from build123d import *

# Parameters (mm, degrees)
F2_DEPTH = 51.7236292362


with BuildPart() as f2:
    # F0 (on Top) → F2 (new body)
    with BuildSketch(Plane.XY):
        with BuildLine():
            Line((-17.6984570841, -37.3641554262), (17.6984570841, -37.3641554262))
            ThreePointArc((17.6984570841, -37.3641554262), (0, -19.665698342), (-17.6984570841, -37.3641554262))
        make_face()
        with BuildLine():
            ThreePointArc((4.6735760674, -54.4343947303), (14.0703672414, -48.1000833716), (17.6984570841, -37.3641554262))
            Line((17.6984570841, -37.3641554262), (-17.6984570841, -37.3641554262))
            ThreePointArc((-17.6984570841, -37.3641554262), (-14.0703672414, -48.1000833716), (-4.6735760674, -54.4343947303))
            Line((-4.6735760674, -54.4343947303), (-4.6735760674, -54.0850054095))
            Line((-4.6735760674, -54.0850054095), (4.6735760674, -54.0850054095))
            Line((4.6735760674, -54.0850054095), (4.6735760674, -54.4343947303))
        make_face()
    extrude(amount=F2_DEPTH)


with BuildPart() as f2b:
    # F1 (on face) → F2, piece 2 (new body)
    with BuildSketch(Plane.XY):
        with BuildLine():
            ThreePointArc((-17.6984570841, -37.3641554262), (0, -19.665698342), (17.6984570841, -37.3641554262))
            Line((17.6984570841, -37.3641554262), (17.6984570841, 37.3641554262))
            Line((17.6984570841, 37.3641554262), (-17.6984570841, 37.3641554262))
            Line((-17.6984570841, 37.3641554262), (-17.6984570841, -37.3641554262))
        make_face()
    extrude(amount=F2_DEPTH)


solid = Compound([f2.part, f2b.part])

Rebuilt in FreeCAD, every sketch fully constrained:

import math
import FreeCAD as App
import Part
import Sketcher
from FreeCAD import Vector
Q = App.Units.Quantity

doc = App.newDocument("Part")
body = doc.addObject("PartDesign::Body", "Body")

sketch1 = body.newObject("Sketcher::SketchObject", "Sketch")
sketch1.AttachmentSupport = (doc.getObject("XY_Plane"), [""])
sketch1.MapMode = "FlatFace"
sketch1.addGeometry([
    Part.ArcOfCircle(Part.Circle(Vector(0, -37.364155, 0), Vector(0, 0, 1), 17.698457), math.radians(0), math.radians(180)),
    Part.ArcOfCircle(Part.Circle(Vector(0, -37.364155, 0), Vector(0, 0, 1), 17.698457), math.radians(180), math.radians(254.688487)),
    Part.LineSegment(Vector(-4.673576, -54.434395, 0), Vector(-4.673576, -54.085005, 0)),
    Part.LineSegment(Vector(-4.673576, -54.085005, 0), Vector(4.673576, -54.085005, 0)),
    Part.LineSegment(Vector(4.673576, -54.085005, 0), Vector(4.673576, -54.434395, 0)),
    Part.ArcOfCircle(Part.Circle(Vector(0, -37.364155, 0), Vector(0, 0, 1), 17.698457), math.radians(-74.688487), math.radians(0)),
], False)
sketch1.addConstraint([
    Sketcher.Constraint("Tangent", 0, 2, 1, 1),
    Sketcher.Constraint("Coincident", 1, 2, 2, 1),
    Sketcher.Constraint("Coincident", 2, 2, 3, 1),
    Sketcher.Constraint("Coincident", 3, 2, 4, 1),
    Sketcher.Constraint("Coincident", 4, 2, 5, 1),
    Sketcher.Constraint("Tangent", 5, 2, 0, 1),
    Sketcher.Constraint("Vertical", 2),
    Sketcher.Constraint("Horizontal", 3),
    Sketcher.Constraint("Vertical", 4),
    Sketcher.Constraint("Equal", 0, 1),
    Sketcher.Constraint("Equal", 1, 5),
    Sketcher.Constraint("Symmetric", 1, 2, 4, 2, -2),
    Sketcher.Constraint("Horizontal", 5, 3, 0, 2),
    Sketcher.Constraint("Horizontal", 0, 2, 5, 2),
    Sketcher.Constraint("Radius", 0, Q("17.698457 mm")),
    Sketcher.Constraint("DistanceY", 2, 1, 2, 2, Q("0.349389 mm")),
    Sketcher.Constraint("DistanceX", 3, 1, 3, 2, Q("9.347152 mm")),
    Sketcher.Constraint("DistanceY", 0, 3, -1, 1, Q("37.364155 mm")),
])
pad1 = body.newObject("PartDesign::Pad", "Pad")
pad1.Profile = sketch1
pad1.Length = 51.723629
body2 = doc.addObject("PartDesign::Body", "Body001")

sketch2 = body2.newObject("Sketcher::SketchObject", "Sketch001")
sketch2.AttachmentSupport = (doc.getObject("XY_Plane001"), [""])
sketch2.MapMode = "FlatFace"
sketch2.addGeometry([
    Part.ArcOfCircle(Part.Circle(Vector(0, -37.364155, 0), Vector(0, 0, 1), 17.698457), math.radians(0), math.radians(180)),
    Part.LineSegment(Vector(17.698457, -37.364155, 0), Vector(17.698457, 37.364155, 0)),
    Part.LineSegment(Vector(17.698457, 37.364155, 0), Vector(-17.698457, 37.364155, 0)),
    Part.LineSegment(Vector(-17.698457, 37.364155, 0), Vector(-17.698457, -37.364155, 0)),
], False)
sketch2.addConstraint([
    Sketcher.Constraint("Tangent", 0, 1, 1, 1),
    Sketcher.Constraint("Coincident", 1, 2, 2, 1),
    Sketcher.Constraint("Coincident", 2, 2, 3, 1),
    Sketcher.Constraint("Tangent", 3, 2, 0, 2),
    Sketcher.Constraint("Vertical", 1),
    Sketcher.Constraint("Horizontal", 2),
    Sketcher.Constraint("Vertical", 3),
    Sketcher.Constraint("Symmetric", 0, 1, 2, 2, -1, 1),
    Sketcher.Constraint("Radius", 0, Q("17.698457 mm")),
    Sketcher.Constraint("DistanceY", 1, 1, 1, 2, Q("74.728311 mm")),
])
pad2 = body2.newObject("PartDesign::Pad", "Pad001")
pad2.Profile = sketch2
pad2.Length = 51.723629

doc.recompute()
